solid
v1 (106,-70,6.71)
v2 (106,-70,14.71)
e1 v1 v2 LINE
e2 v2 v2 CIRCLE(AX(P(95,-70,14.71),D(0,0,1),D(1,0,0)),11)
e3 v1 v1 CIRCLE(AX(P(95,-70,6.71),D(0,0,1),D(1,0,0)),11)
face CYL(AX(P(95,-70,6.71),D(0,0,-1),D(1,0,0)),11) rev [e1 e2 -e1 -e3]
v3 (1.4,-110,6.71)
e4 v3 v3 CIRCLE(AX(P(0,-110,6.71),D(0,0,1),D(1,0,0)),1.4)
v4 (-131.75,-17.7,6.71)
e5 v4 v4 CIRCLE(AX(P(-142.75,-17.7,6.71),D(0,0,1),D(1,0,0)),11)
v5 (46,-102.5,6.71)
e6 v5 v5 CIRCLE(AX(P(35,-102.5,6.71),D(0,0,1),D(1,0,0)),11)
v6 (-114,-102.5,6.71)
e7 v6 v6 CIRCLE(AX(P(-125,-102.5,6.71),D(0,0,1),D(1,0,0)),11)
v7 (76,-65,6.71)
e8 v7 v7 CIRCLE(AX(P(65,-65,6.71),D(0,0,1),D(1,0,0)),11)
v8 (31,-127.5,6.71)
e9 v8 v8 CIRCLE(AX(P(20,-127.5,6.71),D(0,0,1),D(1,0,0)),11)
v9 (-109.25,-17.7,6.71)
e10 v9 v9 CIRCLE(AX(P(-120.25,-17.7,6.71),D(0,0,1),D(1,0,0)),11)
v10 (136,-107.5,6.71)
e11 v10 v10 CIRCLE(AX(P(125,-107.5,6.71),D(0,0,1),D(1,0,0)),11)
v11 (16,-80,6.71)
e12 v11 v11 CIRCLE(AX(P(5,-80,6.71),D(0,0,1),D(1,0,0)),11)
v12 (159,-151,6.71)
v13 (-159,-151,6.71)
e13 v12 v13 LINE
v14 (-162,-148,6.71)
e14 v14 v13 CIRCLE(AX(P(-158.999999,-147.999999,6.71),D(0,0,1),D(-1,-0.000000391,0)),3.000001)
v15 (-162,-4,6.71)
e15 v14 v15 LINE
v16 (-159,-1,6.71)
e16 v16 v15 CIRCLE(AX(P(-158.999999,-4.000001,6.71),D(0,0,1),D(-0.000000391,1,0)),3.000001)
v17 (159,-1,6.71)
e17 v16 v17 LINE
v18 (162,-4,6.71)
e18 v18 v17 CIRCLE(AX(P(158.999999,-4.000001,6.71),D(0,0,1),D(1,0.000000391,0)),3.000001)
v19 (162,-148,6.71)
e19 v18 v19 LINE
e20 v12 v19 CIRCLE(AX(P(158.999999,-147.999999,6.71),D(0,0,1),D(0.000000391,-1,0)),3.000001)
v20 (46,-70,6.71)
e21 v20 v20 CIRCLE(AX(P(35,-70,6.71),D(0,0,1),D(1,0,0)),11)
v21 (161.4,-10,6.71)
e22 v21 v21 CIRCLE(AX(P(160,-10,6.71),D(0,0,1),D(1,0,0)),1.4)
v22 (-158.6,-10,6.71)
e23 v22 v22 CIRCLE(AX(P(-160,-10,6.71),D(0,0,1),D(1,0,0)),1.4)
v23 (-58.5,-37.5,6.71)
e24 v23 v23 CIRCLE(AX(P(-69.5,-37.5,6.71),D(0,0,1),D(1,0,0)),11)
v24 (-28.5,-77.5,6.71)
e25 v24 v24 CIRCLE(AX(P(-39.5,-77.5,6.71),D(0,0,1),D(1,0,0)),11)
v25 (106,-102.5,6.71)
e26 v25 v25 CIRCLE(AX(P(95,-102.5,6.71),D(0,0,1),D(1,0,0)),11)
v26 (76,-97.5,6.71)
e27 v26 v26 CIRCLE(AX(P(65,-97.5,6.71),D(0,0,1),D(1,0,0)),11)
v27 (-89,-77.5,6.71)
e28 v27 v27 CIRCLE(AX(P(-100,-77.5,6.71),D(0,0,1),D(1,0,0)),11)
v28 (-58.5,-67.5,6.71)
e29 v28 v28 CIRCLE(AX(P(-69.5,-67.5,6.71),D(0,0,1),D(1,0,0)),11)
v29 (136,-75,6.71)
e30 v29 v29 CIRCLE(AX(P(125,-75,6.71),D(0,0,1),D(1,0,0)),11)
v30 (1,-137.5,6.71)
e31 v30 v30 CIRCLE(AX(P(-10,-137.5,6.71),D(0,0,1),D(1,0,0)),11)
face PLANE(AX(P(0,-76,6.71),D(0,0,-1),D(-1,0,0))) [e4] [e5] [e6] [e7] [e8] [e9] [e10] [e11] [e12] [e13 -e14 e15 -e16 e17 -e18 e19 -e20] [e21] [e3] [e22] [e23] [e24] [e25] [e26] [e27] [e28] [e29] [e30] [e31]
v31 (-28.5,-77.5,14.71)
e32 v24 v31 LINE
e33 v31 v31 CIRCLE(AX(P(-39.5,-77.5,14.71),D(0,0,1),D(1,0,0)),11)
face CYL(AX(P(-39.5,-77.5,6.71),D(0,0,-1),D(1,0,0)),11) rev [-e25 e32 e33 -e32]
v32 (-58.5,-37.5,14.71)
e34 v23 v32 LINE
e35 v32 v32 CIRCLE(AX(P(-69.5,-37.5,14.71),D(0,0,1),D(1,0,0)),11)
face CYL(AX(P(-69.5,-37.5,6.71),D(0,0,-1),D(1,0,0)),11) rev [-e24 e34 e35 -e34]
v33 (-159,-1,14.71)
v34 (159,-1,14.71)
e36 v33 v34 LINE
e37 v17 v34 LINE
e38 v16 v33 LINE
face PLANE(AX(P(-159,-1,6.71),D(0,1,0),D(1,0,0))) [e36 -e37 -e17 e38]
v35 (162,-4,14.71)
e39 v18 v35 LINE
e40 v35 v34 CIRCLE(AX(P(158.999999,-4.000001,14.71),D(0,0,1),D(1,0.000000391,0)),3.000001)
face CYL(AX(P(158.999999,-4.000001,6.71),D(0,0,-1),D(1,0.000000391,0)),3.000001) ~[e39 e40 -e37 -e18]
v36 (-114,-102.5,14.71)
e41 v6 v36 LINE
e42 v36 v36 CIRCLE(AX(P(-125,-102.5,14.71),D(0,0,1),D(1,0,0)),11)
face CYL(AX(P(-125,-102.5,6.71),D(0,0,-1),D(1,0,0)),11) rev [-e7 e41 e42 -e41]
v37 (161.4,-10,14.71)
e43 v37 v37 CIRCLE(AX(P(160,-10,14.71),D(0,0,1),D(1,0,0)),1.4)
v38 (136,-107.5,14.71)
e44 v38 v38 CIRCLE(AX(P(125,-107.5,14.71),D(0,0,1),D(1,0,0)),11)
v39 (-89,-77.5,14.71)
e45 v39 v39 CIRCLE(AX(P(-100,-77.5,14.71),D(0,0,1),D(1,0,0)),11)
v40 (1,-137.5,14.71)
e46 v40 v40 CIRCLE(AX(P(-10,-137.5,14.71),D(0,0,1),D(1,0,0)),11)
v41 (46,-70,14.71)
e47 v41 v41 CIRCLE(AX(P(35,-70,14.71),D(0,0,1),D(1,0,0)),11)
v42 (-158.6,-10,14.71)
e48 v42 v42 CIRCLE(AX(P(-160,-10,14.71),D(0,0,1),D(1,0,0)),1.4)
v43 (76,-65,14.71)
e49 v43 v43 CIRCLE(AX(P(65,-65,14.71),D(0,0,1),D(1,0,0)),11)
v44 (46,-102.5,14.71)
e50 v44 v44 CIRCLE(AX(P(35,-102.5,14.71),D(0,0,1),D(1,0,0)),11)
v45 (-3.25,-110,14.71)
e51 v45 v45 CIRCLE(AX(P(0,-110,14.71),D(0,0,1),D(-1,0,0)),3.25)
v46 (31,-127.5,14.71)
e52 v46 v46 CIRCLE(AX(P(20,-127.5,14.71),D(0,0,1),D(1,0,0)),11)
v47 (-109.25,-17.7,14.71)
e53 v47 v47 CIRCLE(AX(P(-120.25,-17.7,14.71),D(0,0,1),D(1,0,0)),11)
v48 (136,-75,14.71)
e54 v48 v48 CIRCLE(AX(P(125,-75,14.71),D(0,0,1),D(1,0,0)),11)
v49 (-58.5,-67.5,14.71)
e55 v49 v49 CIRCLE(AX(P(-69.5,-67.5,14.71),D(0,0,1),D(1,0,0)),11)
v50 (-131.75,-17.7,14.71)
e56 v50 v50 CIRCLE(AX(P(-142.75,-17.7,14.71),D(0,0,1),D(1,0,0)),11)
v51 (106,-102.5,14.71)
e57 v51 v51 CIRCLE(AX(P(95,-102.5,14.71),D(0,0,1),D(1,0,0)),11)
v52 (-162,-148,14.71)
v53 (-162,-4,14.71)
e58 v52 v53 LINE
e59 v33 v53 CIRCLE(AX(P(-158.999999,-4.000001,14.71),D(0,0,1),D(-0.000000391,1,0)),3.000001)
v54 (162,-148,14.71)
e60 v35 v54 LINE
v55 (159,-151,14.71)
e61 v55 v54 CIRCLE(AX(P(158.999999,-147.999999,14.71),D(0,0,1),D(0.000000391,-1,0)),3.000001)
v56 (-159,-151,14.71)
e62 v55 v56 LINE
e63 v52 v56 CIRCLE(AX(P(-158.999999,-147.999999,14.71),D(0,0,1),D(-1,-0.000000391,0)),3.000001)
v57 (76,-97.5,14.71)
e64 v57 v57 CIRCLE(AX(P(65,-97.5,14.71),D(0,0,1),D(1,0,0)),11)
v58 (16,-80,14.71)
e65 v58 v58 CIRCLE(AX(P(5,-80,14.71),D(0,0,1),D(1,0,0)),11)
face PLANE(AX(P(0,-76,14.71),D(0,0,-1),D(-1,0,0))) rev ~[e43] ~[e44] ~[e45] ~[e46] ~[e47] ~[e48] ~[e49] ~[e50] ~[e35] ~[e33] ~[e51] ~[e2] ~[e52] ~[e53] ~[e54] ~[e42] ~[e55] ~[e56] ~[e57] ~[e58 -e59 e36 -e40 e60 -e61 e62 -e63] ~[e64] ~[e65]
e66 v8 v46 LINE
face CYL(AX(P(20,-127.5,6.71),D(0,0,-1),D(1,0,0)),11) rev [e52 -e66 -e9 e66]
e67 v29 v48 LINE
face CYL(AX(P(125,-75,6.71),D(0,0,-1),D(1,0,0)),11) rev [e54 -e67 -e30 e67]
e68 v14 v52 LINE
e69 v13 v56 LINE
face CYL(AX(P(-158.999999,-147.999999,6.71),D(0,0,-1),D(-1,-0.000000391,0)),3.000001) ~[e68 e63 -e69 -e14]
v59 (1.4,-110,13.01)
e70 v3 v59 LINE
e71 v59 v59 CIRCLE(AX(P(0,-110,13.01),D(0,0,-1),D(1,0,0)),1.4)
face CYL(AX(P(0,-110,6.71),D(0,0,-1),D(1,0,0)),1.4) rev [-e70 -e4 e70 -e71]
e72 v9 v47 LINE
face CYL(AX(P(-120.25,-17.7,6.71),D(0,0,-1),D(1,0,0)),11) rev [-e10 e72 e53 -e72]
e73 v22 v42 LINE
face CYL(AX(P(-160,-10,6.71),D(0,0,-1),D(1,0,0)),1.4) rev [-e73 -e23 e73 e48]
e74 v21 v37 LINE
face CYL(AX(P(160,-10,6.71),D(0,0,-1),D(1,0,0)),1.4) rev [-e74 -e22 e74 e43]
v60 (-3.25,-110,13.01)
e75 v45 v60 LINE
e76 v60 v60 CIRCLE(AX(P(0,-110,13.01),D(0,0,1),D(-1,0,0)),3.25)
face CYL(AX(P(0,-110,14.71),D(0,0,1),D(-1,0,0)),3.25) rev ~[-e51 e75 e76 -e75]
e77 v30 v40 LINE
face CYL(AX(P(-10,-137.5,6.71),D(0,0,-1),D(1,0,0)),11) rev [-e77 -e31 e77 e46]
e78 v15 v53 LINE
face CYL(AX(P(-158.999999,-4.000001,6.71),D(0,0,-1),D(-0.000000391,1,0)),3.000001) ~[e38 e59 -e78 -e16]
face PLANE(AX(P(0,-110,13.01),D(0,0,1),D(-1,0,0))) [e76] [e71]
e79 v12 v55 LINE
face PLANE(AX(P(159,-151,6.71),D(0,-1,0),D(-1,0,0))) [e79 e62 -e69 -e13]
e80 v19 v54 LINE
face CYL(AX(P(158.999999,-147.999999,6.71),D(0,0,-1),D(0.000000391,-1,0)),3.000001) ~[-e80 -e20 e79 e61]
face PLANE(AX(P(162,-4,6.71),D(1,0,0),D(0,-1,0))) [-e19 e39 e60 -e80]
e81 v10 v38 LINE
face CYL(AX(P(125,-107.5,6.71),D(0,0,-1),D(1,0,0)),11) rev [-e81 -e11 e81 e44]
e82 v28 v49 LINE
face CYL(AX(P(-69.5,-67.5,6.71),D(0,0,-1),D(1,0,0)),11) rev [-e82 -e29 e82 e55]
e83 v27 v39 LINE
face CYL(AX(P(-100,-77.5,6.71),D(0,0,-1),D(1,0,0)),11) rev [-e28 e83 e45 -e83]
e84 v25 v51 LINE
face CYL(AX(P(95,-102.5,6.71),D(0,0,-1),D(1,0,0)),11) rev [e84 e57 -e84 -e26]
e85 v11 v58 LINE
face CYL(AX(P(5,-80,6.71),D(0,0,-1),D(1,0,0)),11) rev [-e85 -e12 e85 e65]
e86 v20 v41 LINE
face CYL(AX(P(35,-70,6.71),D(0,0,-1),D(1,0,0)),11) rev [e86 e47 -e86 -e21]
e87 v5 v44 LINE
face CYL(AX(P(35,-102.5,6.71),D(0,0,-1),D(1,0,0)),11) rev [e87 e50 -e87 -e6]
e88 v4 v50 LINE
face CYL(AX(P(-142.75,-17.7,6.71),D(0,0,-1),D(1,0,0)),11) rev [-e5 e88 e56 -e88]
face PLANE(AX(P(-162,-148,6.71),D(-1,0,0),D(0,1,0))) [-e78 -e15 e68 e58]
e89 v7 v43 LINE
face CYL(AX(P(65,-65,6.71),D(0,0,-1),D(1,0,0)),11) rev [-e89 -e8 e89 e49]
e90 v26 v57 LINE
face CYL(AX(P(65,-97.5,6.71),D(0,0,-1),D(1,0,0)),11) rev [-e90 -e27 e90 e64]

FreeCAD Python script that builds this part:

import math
import FreeCAD as App
import Part
import Sketcher

V = App.Vector

doc = App.newDocument("Part")
body = doc.addObject("PartDesign::Body", "Body")

# Sketch on XY plane
sketch1 = doc.addObject("Sketcher::SketchObject", "Sketch")
body.addObject(sketch1)
sketch1.AttachmentSupport = (doc.XY_Plane, [""])
sketch1.MapMode = "FlatFace"
sketch1.addGeometry([
    Part.LineSegment(V(159, -1, 0), V(-159, -1, 0)),  # 0
    Part.ArcOfCircle(Part.Circle(V(-158.999999, -4.000001, 0), V(0, 0, 1), 3.000001), math.radians(90.000022), math.radians(179.999978)),  # 1
    Part.LineSegment(V(-162, -4, 0), V(-162, -148, 0)),  # 2
    Part.ArcOfCircle(Part.Circle(V(-158.999999, -147.999999, 0), V(0, 0, 1), 3.000001), math.radians(-179.999978), math.radians(-90.000022)),  # 3
    Part.LineSegment(V(-159, -151, 0), V(159, -151, 0)),  # 4
    Part.ArcOfCircle(Part.Circle(V(158.999999, -147.999999, 0), V(0, 0, 1), 3.000001), math.radians(-89.999978), math.radians(-0.000022)),  # 5
    Part.LineSegment(V(162, -148, 0), V(162, -4, 0)),  # 6
    Part.ArcOfCircle(Part.Circle(V(158.999999, -4.000001, 0), V(0, 0, 1), 3.000001), math.radians(0.000022), math.radians(89.999978)),  # 7
], False)
sketch1.addConstraint([
    Sketcher.Constraint("Tangent", 0, 2, 1, 1),
    Sketcher.Constraint("Tangent", 1, 2, 2, 1),
    Sketcher.Constraint("Tangent", 2, 2, 3, 1),
    Sketcher.Constraint("Tangent", 3, 2, 4, 1),
    Sketcher.Constraint("Tangent", 4, 2, 5, 1),
    Sketcher.Constraint("Tangent", 5, 2, 6, 1),
    Sketcher.Constraint("Tangent", 6, 2, 7, 1),
    Sketcher.Constraint("Tangent", 7, 2, 0, 1),
    Sketcher.Constraint("Horizontal", 0),
    Sketcher.Constraint("Vertical", 2),
    Sketcher.Constraint("Horizontal", 4),
    Sketcher.Constraint("Vertical", 6),
    Sketcher.Constraint("Equal", 1, 3),
    Sketcher.Constraint("Equal", 3, 5),
    Sketcher.Constraint("Equal", 5, 7),
    Sketcher.Constraint("Radius", 1, 3.000001),
    Sketcher.Constraint("DistanceX", 0, 2, 0, 1, 318.0),
    Sketcher.Constraint("DistanceY", 2, 2, 2, 1, 144.0),
    Sketcher.Constraint("DistanceX", 1, 3, -1, 1, 158.999999),
    Sketcher.Constraint("DistanceY", 1, 3, -1, 1, 4.000001),
])
pad1 = doc.addObject("PartDesign::Pad", "Pad")
body.addObject(pad1)
pad1.Profile = sketch1
pad1.Length = 8

# Sketch on XY plane
sketch2 = doc.addObject("Sketcher::SketchObject", "Sketch001")
body.addObject(sketch2)
sketch2.AttachmentSupport = (doc.XY_Plane, [""])
sketch2.MapMode = "FlatFace"
sketch2.addGeometry([
    Part.Circle(V(-142.75, -17.7, 0), V(0, 0, 1), 11),  # 0
    Part.Circle(V(-120.25, -17.7, 0), V(0, 0, 1), 11),  # 1
    Part.Circle(V(-69.5, -37.5, 0), V(0, 0, 1), 11),  # 2
    Part.Circle(V(-69.5, -67.5, 0), V(0, 0, 1), 11),  # 3
    Part.Circle(V(-100, -77.5, 0), V(0, 0, 1), 11),  # 4
    Part.Circle(V(-125, -102.5, 0), V(0, 0, 1), 11),  # 5
    Part.Circle(V(-39.5, -77.5, 0), V(0, 0, 1), 11),  # 6
    Part.Circle(V(5, -80, 0), V(0, 0, 1), 11),  # 7
    Part.Circle(V(35, -70, 0), V(0, 0, 1), 11),  # 8
    Part.Circle(V(65, -65, 0), V(0, 0, 1), 11),  # 9
    Part.Circle(V(95, -70, 0), V(0, 0, 1), 11),  # 10
    Part.Circle(V(125, -75, 0), V(0, 0, 1), 11),  # 11
    Part.Circle(V(-10, -137.5, 0), V(0, 0, 1), 11),  # 12
    Part.Circle(V(20, -127.5, 0), V(0, 0, 1), 11),  # 13
    Part.Circle(V(35, -102.5, 0), V(0, 0, 1), 11),  # 14
    Part.Circle(V(65, -97.5, 0), V(0, 0, 1), 11),  # 15
    Part.Circle(V(95, -102.5, 0), V(0, 0, 1), 11),  # 16
    Part.Circle(V(125, -107.5, 0), V(0, 0, 1), 11),  # 17
], False)
sketch2.addConstraint([
    Sketcher.Constraint("Equal", 0, 1),
    Sketcher.Constraint("Equal", 1, 2),
    Sketcher.Constraint("Equal", 2, 3),
    Sketcher.Constraint("Equal", 3, 4),
    Sketcher.Constraint("Equal", 4, 5),
    Sketcher.Constraint("Equal", 5, 6),
    Sketcher.Constraint("Equal", 6, 7),
    Sketcher.Constraint("Equal", 7, 8),
    Sketcher.Constraint("Equal", 8, 9),
    Sketcher.Constraint("Equal", 9, 10),
    Sketcher.Constraint("Equal", 10, 11),
    Sketcher.Constraint("Equal", 11, 12),
    Sketcher.Constraint("Equal", 12, 13),
    Sketcher.Constraint("Equal", 13, 14),
    Sketcher.Constraint("Equal", 14, 15),
    Sketcher.Constraint("Equal", 15, 16),
    Sketcher.Constraint("Equal", 16, 17),
    Sketcher.Constraint("Horizontal", 0, 3, 1, 3),
    Sketcher.Constraint("Horizontal", 4, 3, 6, 3),
    Sketcher.Constraint("Horizontal", 8, 3, 10, 3),
    Sketcher.Constraint("Horizontal", 5, 3, 14, 3),
    Sketcher.Constraint("Horizontal", 14, 3, 16, 3),
    Sketcher.Constraint("Vertical", 2, 3, 3, 3),
    Sketcher.Constraint("Vertical", 8, 3, 14, 3),
    Sketcher.Constraint("Vertical", 9, 3, 15, 3),
    Sketcher.Constraint("Vertical", 10, 3, 16, 3),
    Sketcher.Constraint("Vertical", 11, 3, 17, 3),
    Sketcher.Constraint("Diameter", 0, 22.0),
    Sketcher.Constraint("DistanceX", 4, 3, -1, 1, 100.0),
    Sketcher.Constraint("DistanceX", 5, 3, -1, 1, 125.0),
    Sketcher.Constraint("DistanceX", -1, 1, 7, 3, 5.0),
    Sketcher.Constraint("DistanceY", 7, 3, -1, 1, 80.0),
    Sketcher.Constraint("DistanceX", -1, 1, 8, 3, 35.0),
    Sketcher.Constraint("DistanceY", 8, 3, -1, 1, 70.0),
    Sketcher.Constraint("DistanceX", -1, 1, 9, 3, 65.0),
    Sketcher.Constraint("DistanceY", 9, 3, -1, 1, 65.0),
    Sketcher.Constraint("DistanceX", -1, 1, 10, 3, 95.0),
    Sketcher.Constraint("DistanceX", -1, 1, 11, 3, 125.0),
    Sketcher.Constraint("DistanceY", 11, 3, -1, 1, 75.0),
    Sketcher.Constraint("DistanceX", 12, 3, -1, 1, 10.0),
    Sketcher.Constraint("DistanceX", -1, 1, 13, 3, 20.0),
    Sketcher.Constraint("DistanceY", 3, 3, 2, 3, 30.0),
    Sketcher.Constraint("DistanceY", 4, 3, 3, 3, 10.0),
    Sketcher.Constraint("DistanceY", 5, 3, 4, 3, 25.0),
    Sketcher.Constraint("DistanceX", 3, 3, 6, 3, 30.0),
    Sketcher.Constraint("DistanceY", 12, 3, 6, 3, 60.0),
    Sketcher.Constraint("DistanceY", 12, 3, 13, 3, 10.0),
    Sketcher.Constraint("DistanceY", 14, 3, 15, 3, 5.0),
    Sketcher.Constraint("DistanceY", 17, 3, 16, 3, 5.0),
    Sketcher.Constraint("DistanceY", 0, 3, -1, 1, 17.7),
    Sketcher.Constraint("DistanceX", 2, 3, -1, 1, 69.5),
    Sketcher.Constraint("DistanceY", 2, 3, -1, 1, 37.5),
    Sketcher.Constraint("DistanceX", 0, 3, 1, 3, 22.5),
    Sketcher.Constraint("DistanceX", 0, 3, -1, 1, 142.75),
])
pocket1 = doc.addObject("PartDesign::Pocket", "Pocket")
body.addObject(pocket1)
pocket1.Profile = sketch2
pocket1.Length = 8
pocket1.Reversed = True

# Sketch on XY plane
sketch3 = doc.addObject("Sketcher::SketchObject", "Sketch002")
body.addObject(sketch3)
sketch3.AttachmentSupport = (doc.XY_Plane, [""])
sketch3.MapMode = "FlatFace"
sketch3.addGeometry([
    Part.Circle(V(0, -210, 0), V(0, 0, 1), 1.4),  # 0
    Part.Circle(V(160, -210, 0), V(0, 0, 1), 1.4),  # 1
    Part.Circle(V(160, -10, 0), V(0, 0, 1), 1.4),  # 2
    Part.Circle(V(-160, -210, 0), V(0, 0, 1), 1.4),  # 3
    Part.Circle(V(-160, -10, 0), V(0, 0, 1), 1.4),  # 4
    Part.Circle(V(0, -110, 0), V(0, 0, 1), 1.4),  # 5
], False)
sketch3.addConstraint([
    Sketcher.Constraint("Equal", 0, 1),
    Sketcher.Constraint("Equal", 1, 2),
    Sketcher.Constraint("Equal", 2, 3),
    Sketcher.Constraint("Equal", 3, 4),
    Sketcher.Constraint("Equal", 4, 5),
    Sketcher.Constraint("Symmetric", 1, 3, 3, 3, -2),
    Sketcher.Constraint("Symmetric", 2, 3, 4, 3, -2),
    Sketcher.Constraint("PointOnObject", 0, 3, -2),
    Sketcher.Constraint("PointOnObject", 5, 3, -2),
    Sketcher.Constraint("Horizontal", 0, 3, 1, 3),
    Sketcher.Constraint("Vertical", 1, 3, 2, 3),
    Sketcher.Constraint("Diameter", 0, 2.8),
    Sketcher.Constraint("DistanceY", 0, 3, -1, 1, 210.0),
    Sketcher.Constraint("DistanceX", -1, 1, 1, 3, 160.0),
    Sketcher.Constraint("DistanceY", 2, 3, -1, 1, 10.0),
    Sketcher.Constraint("DistanceY", 5, 3, -1, 1, 110.0),
])
pocket2 = doc.addObject("PartDesign::Pocket", "Pocket001")
body.addObject(pocket2)
pocket2.Profile = sketch3
pocket2.Length = 8
pocket2.Reversed = True

# Sketch on XY plane
sketch4 = doc.addObject("Sketcher::SketchObject", "Sketch003")
body.addObject(sketch4)
sketch4.AttachmentSupport = (doc.XY_Plane, [""])
sketch4.MapMode = "FlatFace"
sketch4.AttachmentOffset = App.Placement(V(0, 0, 8), App.Rotation())
sketch4.addGeometry(Part.Circle(V(0, -110, 0), V(0, 0, 1), 3.25), False)
sketch4.addConstraint([
    Sketcher.Constraint("PointOnObject", 0, 3, -2),
    Sketcher.Constraint("Diameter", 0, 6.5),
    Sketcher.Constraint("DistanceY", 0, 3, -1, 1, 110.0),
])
pocket3 = doc.addObject("PartDesign::Pocket", "Pocket002")
body.addObject(pocket3)
pocket3.Profile = sketch4
pocket3.Length = 1.7
body2 = doc.addObject("PartDesign::Body", "Body001")
doc.recompute()

body.Placement = App.Placement(V(0, 0, 6.71), App.Rotation(V(0, 0, 1), 0))
boolean = doc.addObject("PartDesign::Boolean", "Boolean")
body2.addObject(boolean)
boolean.Type = "Fuse"
boolean.addObjects([body])

doc.recompute()
